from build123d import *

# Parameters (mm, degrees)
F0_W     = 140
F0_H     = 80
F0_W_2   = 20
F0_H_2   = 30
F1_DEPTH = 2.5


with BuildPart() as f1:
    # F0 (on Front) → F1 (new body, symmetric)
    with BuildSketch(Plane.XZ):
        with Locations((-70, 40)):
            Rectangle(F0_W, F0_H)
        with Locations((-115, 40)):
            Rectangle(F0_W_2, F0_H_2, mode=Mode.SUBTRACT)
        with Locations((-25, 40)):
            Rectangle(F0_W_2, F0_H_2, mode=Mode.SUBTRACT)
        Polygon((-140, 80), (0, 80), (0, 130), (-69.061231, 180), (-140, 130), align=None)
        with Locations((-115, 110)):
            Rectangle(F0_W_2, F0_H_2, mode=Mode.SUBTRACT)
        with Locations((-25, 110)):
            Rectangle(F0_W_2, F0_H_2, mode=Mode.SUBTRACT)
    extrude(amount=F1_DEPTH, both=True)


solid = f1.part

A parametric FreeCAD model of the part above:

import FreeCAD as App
import Part
import Sketcher

V = App.Vector
Q = App.Units.Quantity

doc = App.newDocument("Part")
body = doc.addObject("PartDesign::Body", "Body")

sketch1 = doc.addObject("Sketcher::SketchObject", "Sketch")
body.addObject(sketch1)
sketch1.AttachmentSupport = (doc.XZ_Plane, [""])
sketch1.MapMode = "FlatFace"
sketch1.addGeometry(Part.LineSegment(V(-140, 0, 0), V(0, 0, 0)), False)
sketch1.addGeometry(Part.LineSegment(V(0, 0, 0), V(0, 130, 0)), False)
sketch1.addGeometry(Part.LineSegment(V(0, 130, 0), V(-69.061231, 180, 0)), False)
sketch1.addGeometry(Part.LineSegment(V(-69.061231, 180, 0), V(-140, 130, 0)), False)
sketch1.addGeometry(Part.LineSegment(V(-140, 130, 0), V(-140, 0, 0)), False)
sketch1.addGeometry(Part.LineSegment(V(-105, 25, 0), V(-125, 25, 0)), False)
sketch1.addGeometry(Part.LineSegment(V(-125, 25, 0), V(-125, 55, 0)), False)
sketch1.addGeometry(Part.LineSegment(V(-125, 55, 0), V(-105, 55, 0)), False)
sketch1.addGeometry(Part.LineSegment(V(-105, 55, 0), V(-105, 25, 0)), False)
sketch1.addGeometry(Part.LineSegment(V(-15, 25, 0), V(-35, 25, 0)), False)
sketch1.addGeometry(Part.LineSegment(V(-35, 25, 0), V(-35, 55, 0)), False)
sketch1.addGeometry(Part.LineSegment(V(-35, 55, 0), V(-15, 55, 0)), False)
sketch1.addGeometry(Part.LineSegment(V(-15, 55, 0), V(-15, 25, 0)), False)
sketch1.addGeometry(Part.LineSegment(V(-105, 95, 0), V(-125, 95, 0)), False)
sketch1.addGeometry(Part.LineSegment(V(-125, 95, 0), V(-125, 125, 0)), False)
sketch1.addGeometry(Part.LineSegment(V(-125, 125, 0), V(-105, 125, 0)), False)
sketch1.addGeometry(Part.LineSegment(V(-105, 125, 0), V(-105, 95, 0)), False)
sketch1.addGeometry(Part.LineSegment(V(-15, 95, 0), V(-35, 95, 0)), False)
sketch1.addGeometry(Part.LineSegment(V(-35, 95, 0), V(-35, 125, 0)), False)
sketch1.addGeometry(Part.LineSegment(V(-35, 125, 0), V(-15, 125, 0)), False)
sketch1.addGeometry(Part.LineSegment(V(-15, 125, 0), V(-15, 95, 0)), False)
sketch1.addConstraint(Sketcher.Constraint("Coincident", 0, 2, 1, 1))
sketch1.addConstraint(Sketcher.Constraint("Coincident", 1, 2, 2, 1))
sketch1.addConstraint(Sketcher.Constraint("Coincident", 2, 2, 3, 1))
sketch1.addConstraint(Sketcher.Constraint("Coincident", 3, 2, 4, 1))
sketch1.addConstraint(Sketcher.Constraint("Coincident", 4, 2, 0, 1))
sketch1.addConstraint(Sketcher.Constraint("Coincident", 5, 2, 6, 1))
sketch1.addConstraint(Sketcher.Constraint("Coincident", 6, 2, 7, 1))
sketch1.addConstraint(Sketcher.Constraint("Coincident", 7, 2, 8, 1))
sketch1.addConstraint(Sketcher.Constraint("Coincident", 8, 2, 5, 1))
sketch1.addConstraint(Sketcher.Constraint("Coincident", 9, 2, 10, 1))
sketch1.addConstraint(Sketcher.Constraint("Coincident", 10, 2, 11, 1))
sketch1.addConstraint(Sketcher.Constraint("Coincident", 11, 2, 12, 1))
sketch1.addConstraint(Sketcher.Constraint("Coincident", 12, 2, 9, 1))
sketch1.addConstraint(Sketcher.Constraint("Coincident", 13, 2, 14, 1))
sketch1.addConstraint(Sketcher.Constraint("Coincident", 14, 2, 15, 1))
sketch1.addConstraint(Sketcher.Constraint("Coincident", 15, 2, 16, 1))
sketch1.addConstraint(Sketcher.Constraint("Coincident", 16, 2, 13, 1))
sketch1.addConstraint(Sketcher.Constraint("Coincident", 17, 2, 18, 1))
sketch1.addConstraint(Sketcher.Constraint("Coincident", 18, 2, 19, 1))
sketch1.addConstraint(Sketcher.Constraint("Coincident", 19, 2, 20, 1))
sketch1.addConstraint(Sketcher.Constraint("Coincident", 20, 2, 17, 1))
sketch1.addConstraint(Sketcher.Constraint("Horizontal", 0))
sketch1.addConstraint(Sketcher.Constraint("Vertical", 1))
sketch1.addConstraint(Sketcher.Constraint("Vertical", 4))
sketch1.addConstraint(Sketcher.Constraint("Horizontal", 5))
sketch1.addConstraint(Sketcher.Constraint("Vertical", 6))
sketch1.addConstraint(Sketcher.Constraint("Horizontal", 7))
sketch1.addConstraint(Sketcher.Constraint("Vertical", 8))
sketch1.addConstraint(Sketcher.Constraint("Horizontal", 9))
sketch1.addConstraint(Sketcher.Constraint("Vertical", 10))
sketch1.addConstraint(Sketcher.Constraint("Horizontal", 11))
sketch1.addConstraint(Sketcher.Constraint("Vertical", 12))
sketch1.addConstraint(Sketcher.Constraint("Horizontal", 13))
sketch1.addConstraint(Sketcher.Constraint("Vertical", 14))
sketch1.addConstraint(Sketcher.Constraint("Horizontal", 15))
sketch1.addConstraint(Sketcher.Constraint("Vertical", 16))
sketch1.addConstraint(Sketcher.Constraint("Horizontal", 17))
sketch1.addConstraint(Sketcher.Constraint("Vertical", 18))
sketch1.addConstraint(Sketcher.Constraint("Horizontal", 19))
sketch1.addConstraint(Sketcher.Constraint("Vertical", 20))
sketch1.addConstraint(Sketcher.Constraint("Coincident", 0, 2, -1, 1))
sketch1.addConstraint(Sketcher.Constraint("Horizontal", 1, 2, 3, 2))
sketch1.addConstraint(Sketcher.Constraint("Horizontal", 8, 2, 9, 2))
sketch1.addConstraint(Sketcher.Constraint("Horizontal", 7, 2, 10, 2))
sketch1.addConstraint(Sketcher.Constraint("Horizontal", 16, 2, 17, 2))
sketch1.addConstraint(Sketcher.Constraint("Horizontal", 15, 2, 18, 2))
sketch1.addConstraint(Sketcher.Constraint("Vertical", 6, 2, 13, 2))
sketch1.addConstraint(Sketcher.Constraint("Vertical", 8, 2, 15, 2))
sketch1.addConstraint(Sketcher.Constraint("Vertical", 10, 2, 17, 2))
sketch1.addConstraint(Sketcher.Constraint("Vertical", 12, 2, 19, 2))
sketch1.addConstraint(Sketcher.Constraint("Equal", 7, 9))
sketch1.addConstraint(Sketcher.Constraint("Equal", 12, 14))
sketch1.addConstraint(Sketcher.Constraint("DistanceX", 0, 1, 0, 2, Q("140 mm")))
sketch1.addConstraint(Sketcher.Constraint("DistanceX", 5, 2, 5, 1, Q("20 mm")))
sketch1.addConstraint(Sketcher.Constraint("DistanceY", 1, 1, 1, 2, Q("130 mm")))
sketch1.addConstraint(Sketcher.Constraint("DistanceY", 6, 1, 6, 2, Q("30 mm")))
sketch1.addConstraint(Sketcher.Constraint("DistanceY", -1, 1, 2, 2, Q("180 mm")))
sketch1.addConstraint(Sketcher.Constraint("DistanceX", 5, 2, -1, 1, Q("125 mm")))
sketch1.addConstraint(Sketcher.Constraint("DistanceY", -1, 1, 5, 2, Q("25 mm")))
sketch1.addConstraint(Sketcher.Constraint("DistanceX", 9, 2, -1, 1, Q("35 mm")))
sketch1.addConstraint(Sketcher.Constraint("DistanceY", -1, 1, 13, 2, Q("95 mm")))
sketch1.addConstraint(Sketcher.Constraint("Distance", 2, Q("85.261091 mm")))
pad1 = doc.addObject("PartDesign::Pad", "Pad")
body.addObject(pad1)
pad1.Profile = sketch1
pad1.Length = 5
pad1.Midplane = True

doc.recompute()
